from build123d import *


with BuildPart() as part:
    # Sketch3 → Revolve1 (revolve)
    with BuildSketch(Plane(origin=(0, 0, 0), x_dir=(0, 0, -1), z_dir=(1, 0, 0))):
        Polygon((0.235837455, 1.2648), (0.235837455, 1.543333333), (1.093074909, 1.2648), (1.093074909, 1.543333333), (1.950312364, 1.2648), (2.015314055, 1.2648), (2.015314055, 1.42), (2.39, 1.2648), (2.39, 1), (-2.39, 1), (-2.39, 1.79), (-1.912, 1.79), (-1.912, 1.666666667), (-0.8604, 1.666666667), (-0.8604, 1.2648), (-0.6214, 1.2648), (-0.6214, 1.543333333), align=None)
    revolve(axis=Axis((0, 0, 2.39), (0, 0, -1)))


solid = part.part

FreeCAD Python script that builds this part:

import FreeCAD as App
import Part
import Sketcher
from FreeCAD import Vector
Q = App.Units.Quantity

doc = App.newDocument("Part")
body = doc.addObject("PartDesign::Body", "Body")

# Sketch on YZ plane
sketch1 = body.newObject("Sketcher::SketchObject", "Sketch")
sketch1.AttachmentSupport = (doc.getObject("YZ_Plane"), [""])
sketch1.MapMode = "FlatFace"
sketch1.addGeometry([
    Part.LineSegment(Vector(1.543333, -0.235837, 0), Vector(1.2648, -0.235837, 0)),  # 0
    Part.LineSegment(Vector(1.2648, -0.235837, 0), Vector(1.543333, 0.6214, 0)),  # 1
    Part.LineSegment(Vector(1.543333, 0.6214, 0), Vector(1.2648, 0.6214, 0)),  # 2
    Part.LineSegment(Vector(1.2648, 0.6214, 0), Vector(1.2648, 0.8604, 0)),  # 3
    Part.LineSegment(Vector(1.2648, 0.8604, 0), Vector(1.666667, 0.8604, 0)),  # 4
    Part.LineSegment(Vector(1.666667, 0.8604, 0), Vector(1.666667, 1.912, 0)),  # 5
    Part.LineSegment(Vector(1.666667, 1.912, 0), Vector(1.79, 1.912, 0)),  # 6
    Part.LineSegment(Vector(1.79, 1.912, 0), Vector(1.79, 2.39, 0)),  # 7
    Part.LineSegment(Vector(1.79, 2.39, 0), Vector(1, 2.39, 0)),  # 8
    Part.LineSegment(Vector(1, 2.39, 0), Vector(1, -2.39, 0)),  # 9
    Part.LineSegment(Vector(1, -2.39, 0), Vector(1.2648, -2.39, 0)),  # 10
    Part.LineSegment(Vector(1.2648, -2.39, 0), Vector(1.42, -2.015314, 0)),  # 11
    Part.LineSegment(Vector(1.42, -2.015314, 0), Vector(1.2648, -2.015314, 0)),  # 12
    Part.LineSegment(Vector(1.2648, -2.015314, 0), Vector(1.2648, -1.950312, 0)),  # 13
    Part.LineSegment(Vector(1.2648, -1.950312, 0), Vector(1.543333, -1.093075, 0)),  # 14
    Part.LineSegment(Vector(1.543333, -1.093075, 0), Vector(1.2648, -1.093075, 0)),  # 15
    Part.LineSegment(Vector(1.2648, -1.093075, 0), Vector(1.543333, -0.235837, 0)),  # 16
], False)
sketch1.addConstraint([
    Sketcher.Constraint("Coincident", 0, 2, 1, 1),
    Sketcher.Constraint("Coincident", 1, 2, 2, 1),
    Sketcher.Constraint("Coincident", 2, 2, 3, 1),
    Sketcher.Constraint("Coincident", 3, 2, 4, 1),
    Sketcher.Constraint("Coincident", 4, 2, 5, 1),
    Sketcher.Constraint("Coincident", 5, 2, 6, 1),
    Sketcher.Constraint("Coincident", 6, 2, 7, 1),
    Sketcher.Constraint("Coincident", 7, 2, 8, 1),
    Sketcher.Constraint("Coincident", 8, 2, 9, 1),
    Sketcher.Constraint("Coincident", 9, 2, 10, 1),
    Sketcher.Constraint("Coincident", 10, 2, 11, 1),
    Sketcher.Constraint("Coincident", 11, 2, 12, 1),
    Sketcher.Constraint("Coincident", 12, 2, 13, 1),
    Sketcher.Constraint("Coincident", 13, 2, 14, 1),
    Sketcher.Constraint("Coincident", 14, 2, 15, 1),
    Sketcher.Constraint("Coincident", 15, 2, 16, 1),
    Sketcher.Constraint("Coincident", 16, 2, 0, 1),
    Sketcher.Constraint("Horizontal", 0),
    Sketcher.Constraint("Horizontal", 2),
    Sketcher.Constraint("Vertical", 3),
    Sketcher.Constraint("Horizontal", 4),
    Sketcher.Constraint("Vertical", 5),
    Sketcher.Constraint("Horizontal", 6),
    Sketcher.Constraint("Vertical", 7),
    Sketcher.Constraint("Horizontal", 8),
    Sketcher.Constraint("Vertical", 9),
    Sketcher.Constraint("Horizontal", 10),
    Sketcher.Constraint("Horizontal", 12),
    Sketcher.Constraint("Vertical", 13),
    Sketcher.Constraint("Horizontal", 15),
    Sketcher.Constraint("Parallel", 1, 14),
    Sketcher.Constraint("Parallel", 14, 16),
    Sketcher.Constraint("Vertical", 0, 2, 2, 2),
    Sketcher.Constraint("Vertical", 3, 2, 10, 2),
    Sketcher.Constraint("Vertical", 10, 2, 12, 2),
    Sketcher.Constraint("Vertical", 1, 2, 14, 2),
    Sketcher.Constraint("Vertical", 13, 2, 15, 2),
    Sketcher.Constraint("Vertical", 14, 2, 16, 2),
    Sketcher.Constraint("Angle", 1, Q("72 deg")),
    Sketcher.Constraint("DistanceX", -1, 1, 8, 2, Q("1 mm")),
    Sketcher.Constraint("Angle", 11, Q("67.5 deg")),
    Sketcher.Constraint("DistanceX", 8, 2, 8, 1, Q("0.79 mm")),
    Sketcher.Constraint("DistanceY", 9, 2, 9, 1, Q("4.78 mm")),
    Sketcher.Constraint("DistanceY", 3, 1, 3, 2, Q("0.239 mm")),
    Sketcher.Constraint("DistanceY", 7, 1, 7, 2, Q("0.478 mm")),
    Sketcher.Constraint("DistanceY", 13, 1, 13, 2, Q("0.065002 mm")),
    Sketcher.Constraint("DistanceY", -1, 1, 7, 2, Q("2.39 mm")),
    Sketcher.Constraint("DistanceX", -1, 1, 11, 2, Q("1.42 mm")),
    Sketcher.Constraint("DistanceX", 10, 1, 10, 2, Q("0.2648 mm")),
    Sketcher.Constraint("DistanceY", 5, 1, 5, 2, Q("1.0516 mm")),
    Sketcher.Constraint("DistanceX", 4, 1, 4, 2, Q("0.401867 mm")),
])
revolution = body.newObject("PartDesign::Revolution", "Revolution")
revolution.Profile = sketch1
revolution.ReferenceAxis = (sketch1, ["V_Axis"])
revolution.Angle = 360

doc.recompute()
